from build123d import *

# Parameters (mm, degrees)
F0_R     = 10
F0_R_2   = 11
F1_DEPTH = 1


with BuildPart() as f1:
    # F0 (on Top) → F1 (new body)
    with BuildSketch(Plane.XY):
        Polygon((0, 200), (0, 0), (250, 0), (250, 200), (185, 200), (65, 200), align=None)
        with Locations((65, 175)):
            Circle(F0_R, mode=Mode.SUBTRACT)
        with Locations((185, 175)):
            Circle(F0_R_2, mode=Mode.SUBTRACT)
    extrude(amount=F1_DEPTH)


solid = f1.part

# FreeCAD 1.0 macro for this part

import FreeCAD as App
import Part
import Sketcher

V = App.Vector


def add_polygon(sketch, points):
    """Adds a closed chain of lines whose ends are joined by coincident constraints."""
    first, n = sketch.GeometryCount, len(points)
    for a, b in zip(points, points[1:] + points[:1]):
        sketch.addGeometry(Part.LineSegment(App.Vector(*a, 0), App.Vector(*b, 0)), False)
    for i in range(n):
        sketch.addConstraint(Sketcher.Constraint("Coincident", first + i, 2, first + (i + 1) % n, 1))

doc = App.newDocument("Part")
params = doc.addObject("Spreadsheet::Sheet", "Params")
for row, (alias, value) in enumerate([
    ("sketch1_diameter", "20 mm"),
    ("sketch1_diameter2", "22 mm"),
    ("sketch1_width", "250 mm"),
    ("sketch1_height", "200 mm"),
    ("pad1_length", "1 mm"),
], start=1):
    params.set(f"A{row}", alias)
    params.set(f"B{row}", "=" + value)
    params.setAlias(f"B{row}", alias)

body = doc.addObject("PartDesign::Body", "Body")

# Sketch on XY plane
sketch1 = body.newObject("Sketcher::SketchObject", "Sketch")
sketch1.AttachmentSupport = (doc.getObject("XY_Plane"), [""])
sketch1.MapMode = "FlatFace"
add_polygon(sketch1, [(0, 200), (0, 0), (250, 0), (250, 200)])  # lines 0-3
sketch1.addGeometry(Part.Circle(V(65, 175, 0), V(0, 0, 1), 10), False)  # 4
sketch1.addGeometry(Part.Circle(V(185, 175, 0), V(0, 0, 1), 11), False)  # 5
sketch1.addConstraint(Sketcher.Constraint("Vertical", 0))
sketch1.addConstraint(Sketcher.Constraint("Horizontal", 1))
sketch1.addConstraint(Sketcher.Constraint("Vertical", 2))
sketch1.addConstraint(Sketcher.Constraint("Horizontal", 3))
sketch1.addConstraint(Sketcher.Constraint("Coincident", 0, 2, -1, 1))
sketch1.addConstraint(Sketcher.Constraint("Horizontal", 4, 3, 5, 3))
sketch1.addConstraint(Sketcher.Constraint("Diameter", 4, 20.0))
sketch1.addConstraint(Sketcher.Constraint("Diameter", 5, 22.0))
sketch1.addConstraint(Sketcher.Constraint("DistanceX", 1, 1, 1, 2, 250.0))
sketch1.addConstraint(Sketcher.Constraint("DistanceY", 0, 2, 0, 1, 200.0))
sketch1.addConstraint(Sketcher.Constraint("DistanceX", -1, 1, 4, 3, 65.0))
sketch1.addConstraint(Sketcher.Constraint("DistanceY", -1, 1, 4, 3, 175.0))
sketch1.addConstraint(Sketcher.Constraint("DistanceX", -1, 1, 5, 3, 185.0))
sketch1.setExpression("Constraints[10]", "Params.sketch1_diameter")
sketch1.setExpression("Constraints[11]", "Params.sketch1_diameter2")
sketch1.setExpression("Constraints[12]", "Params.sketch1_width")
sketch1.setExpression("Constraints[13]", "Params.sketch1_height")
pad1 = body.newObject("PartDesign::Pad", "Pad")
pad1.Profile = sketch1
pad1.setExpression("Length", "Params.pad1_length")

doc.recompute()
